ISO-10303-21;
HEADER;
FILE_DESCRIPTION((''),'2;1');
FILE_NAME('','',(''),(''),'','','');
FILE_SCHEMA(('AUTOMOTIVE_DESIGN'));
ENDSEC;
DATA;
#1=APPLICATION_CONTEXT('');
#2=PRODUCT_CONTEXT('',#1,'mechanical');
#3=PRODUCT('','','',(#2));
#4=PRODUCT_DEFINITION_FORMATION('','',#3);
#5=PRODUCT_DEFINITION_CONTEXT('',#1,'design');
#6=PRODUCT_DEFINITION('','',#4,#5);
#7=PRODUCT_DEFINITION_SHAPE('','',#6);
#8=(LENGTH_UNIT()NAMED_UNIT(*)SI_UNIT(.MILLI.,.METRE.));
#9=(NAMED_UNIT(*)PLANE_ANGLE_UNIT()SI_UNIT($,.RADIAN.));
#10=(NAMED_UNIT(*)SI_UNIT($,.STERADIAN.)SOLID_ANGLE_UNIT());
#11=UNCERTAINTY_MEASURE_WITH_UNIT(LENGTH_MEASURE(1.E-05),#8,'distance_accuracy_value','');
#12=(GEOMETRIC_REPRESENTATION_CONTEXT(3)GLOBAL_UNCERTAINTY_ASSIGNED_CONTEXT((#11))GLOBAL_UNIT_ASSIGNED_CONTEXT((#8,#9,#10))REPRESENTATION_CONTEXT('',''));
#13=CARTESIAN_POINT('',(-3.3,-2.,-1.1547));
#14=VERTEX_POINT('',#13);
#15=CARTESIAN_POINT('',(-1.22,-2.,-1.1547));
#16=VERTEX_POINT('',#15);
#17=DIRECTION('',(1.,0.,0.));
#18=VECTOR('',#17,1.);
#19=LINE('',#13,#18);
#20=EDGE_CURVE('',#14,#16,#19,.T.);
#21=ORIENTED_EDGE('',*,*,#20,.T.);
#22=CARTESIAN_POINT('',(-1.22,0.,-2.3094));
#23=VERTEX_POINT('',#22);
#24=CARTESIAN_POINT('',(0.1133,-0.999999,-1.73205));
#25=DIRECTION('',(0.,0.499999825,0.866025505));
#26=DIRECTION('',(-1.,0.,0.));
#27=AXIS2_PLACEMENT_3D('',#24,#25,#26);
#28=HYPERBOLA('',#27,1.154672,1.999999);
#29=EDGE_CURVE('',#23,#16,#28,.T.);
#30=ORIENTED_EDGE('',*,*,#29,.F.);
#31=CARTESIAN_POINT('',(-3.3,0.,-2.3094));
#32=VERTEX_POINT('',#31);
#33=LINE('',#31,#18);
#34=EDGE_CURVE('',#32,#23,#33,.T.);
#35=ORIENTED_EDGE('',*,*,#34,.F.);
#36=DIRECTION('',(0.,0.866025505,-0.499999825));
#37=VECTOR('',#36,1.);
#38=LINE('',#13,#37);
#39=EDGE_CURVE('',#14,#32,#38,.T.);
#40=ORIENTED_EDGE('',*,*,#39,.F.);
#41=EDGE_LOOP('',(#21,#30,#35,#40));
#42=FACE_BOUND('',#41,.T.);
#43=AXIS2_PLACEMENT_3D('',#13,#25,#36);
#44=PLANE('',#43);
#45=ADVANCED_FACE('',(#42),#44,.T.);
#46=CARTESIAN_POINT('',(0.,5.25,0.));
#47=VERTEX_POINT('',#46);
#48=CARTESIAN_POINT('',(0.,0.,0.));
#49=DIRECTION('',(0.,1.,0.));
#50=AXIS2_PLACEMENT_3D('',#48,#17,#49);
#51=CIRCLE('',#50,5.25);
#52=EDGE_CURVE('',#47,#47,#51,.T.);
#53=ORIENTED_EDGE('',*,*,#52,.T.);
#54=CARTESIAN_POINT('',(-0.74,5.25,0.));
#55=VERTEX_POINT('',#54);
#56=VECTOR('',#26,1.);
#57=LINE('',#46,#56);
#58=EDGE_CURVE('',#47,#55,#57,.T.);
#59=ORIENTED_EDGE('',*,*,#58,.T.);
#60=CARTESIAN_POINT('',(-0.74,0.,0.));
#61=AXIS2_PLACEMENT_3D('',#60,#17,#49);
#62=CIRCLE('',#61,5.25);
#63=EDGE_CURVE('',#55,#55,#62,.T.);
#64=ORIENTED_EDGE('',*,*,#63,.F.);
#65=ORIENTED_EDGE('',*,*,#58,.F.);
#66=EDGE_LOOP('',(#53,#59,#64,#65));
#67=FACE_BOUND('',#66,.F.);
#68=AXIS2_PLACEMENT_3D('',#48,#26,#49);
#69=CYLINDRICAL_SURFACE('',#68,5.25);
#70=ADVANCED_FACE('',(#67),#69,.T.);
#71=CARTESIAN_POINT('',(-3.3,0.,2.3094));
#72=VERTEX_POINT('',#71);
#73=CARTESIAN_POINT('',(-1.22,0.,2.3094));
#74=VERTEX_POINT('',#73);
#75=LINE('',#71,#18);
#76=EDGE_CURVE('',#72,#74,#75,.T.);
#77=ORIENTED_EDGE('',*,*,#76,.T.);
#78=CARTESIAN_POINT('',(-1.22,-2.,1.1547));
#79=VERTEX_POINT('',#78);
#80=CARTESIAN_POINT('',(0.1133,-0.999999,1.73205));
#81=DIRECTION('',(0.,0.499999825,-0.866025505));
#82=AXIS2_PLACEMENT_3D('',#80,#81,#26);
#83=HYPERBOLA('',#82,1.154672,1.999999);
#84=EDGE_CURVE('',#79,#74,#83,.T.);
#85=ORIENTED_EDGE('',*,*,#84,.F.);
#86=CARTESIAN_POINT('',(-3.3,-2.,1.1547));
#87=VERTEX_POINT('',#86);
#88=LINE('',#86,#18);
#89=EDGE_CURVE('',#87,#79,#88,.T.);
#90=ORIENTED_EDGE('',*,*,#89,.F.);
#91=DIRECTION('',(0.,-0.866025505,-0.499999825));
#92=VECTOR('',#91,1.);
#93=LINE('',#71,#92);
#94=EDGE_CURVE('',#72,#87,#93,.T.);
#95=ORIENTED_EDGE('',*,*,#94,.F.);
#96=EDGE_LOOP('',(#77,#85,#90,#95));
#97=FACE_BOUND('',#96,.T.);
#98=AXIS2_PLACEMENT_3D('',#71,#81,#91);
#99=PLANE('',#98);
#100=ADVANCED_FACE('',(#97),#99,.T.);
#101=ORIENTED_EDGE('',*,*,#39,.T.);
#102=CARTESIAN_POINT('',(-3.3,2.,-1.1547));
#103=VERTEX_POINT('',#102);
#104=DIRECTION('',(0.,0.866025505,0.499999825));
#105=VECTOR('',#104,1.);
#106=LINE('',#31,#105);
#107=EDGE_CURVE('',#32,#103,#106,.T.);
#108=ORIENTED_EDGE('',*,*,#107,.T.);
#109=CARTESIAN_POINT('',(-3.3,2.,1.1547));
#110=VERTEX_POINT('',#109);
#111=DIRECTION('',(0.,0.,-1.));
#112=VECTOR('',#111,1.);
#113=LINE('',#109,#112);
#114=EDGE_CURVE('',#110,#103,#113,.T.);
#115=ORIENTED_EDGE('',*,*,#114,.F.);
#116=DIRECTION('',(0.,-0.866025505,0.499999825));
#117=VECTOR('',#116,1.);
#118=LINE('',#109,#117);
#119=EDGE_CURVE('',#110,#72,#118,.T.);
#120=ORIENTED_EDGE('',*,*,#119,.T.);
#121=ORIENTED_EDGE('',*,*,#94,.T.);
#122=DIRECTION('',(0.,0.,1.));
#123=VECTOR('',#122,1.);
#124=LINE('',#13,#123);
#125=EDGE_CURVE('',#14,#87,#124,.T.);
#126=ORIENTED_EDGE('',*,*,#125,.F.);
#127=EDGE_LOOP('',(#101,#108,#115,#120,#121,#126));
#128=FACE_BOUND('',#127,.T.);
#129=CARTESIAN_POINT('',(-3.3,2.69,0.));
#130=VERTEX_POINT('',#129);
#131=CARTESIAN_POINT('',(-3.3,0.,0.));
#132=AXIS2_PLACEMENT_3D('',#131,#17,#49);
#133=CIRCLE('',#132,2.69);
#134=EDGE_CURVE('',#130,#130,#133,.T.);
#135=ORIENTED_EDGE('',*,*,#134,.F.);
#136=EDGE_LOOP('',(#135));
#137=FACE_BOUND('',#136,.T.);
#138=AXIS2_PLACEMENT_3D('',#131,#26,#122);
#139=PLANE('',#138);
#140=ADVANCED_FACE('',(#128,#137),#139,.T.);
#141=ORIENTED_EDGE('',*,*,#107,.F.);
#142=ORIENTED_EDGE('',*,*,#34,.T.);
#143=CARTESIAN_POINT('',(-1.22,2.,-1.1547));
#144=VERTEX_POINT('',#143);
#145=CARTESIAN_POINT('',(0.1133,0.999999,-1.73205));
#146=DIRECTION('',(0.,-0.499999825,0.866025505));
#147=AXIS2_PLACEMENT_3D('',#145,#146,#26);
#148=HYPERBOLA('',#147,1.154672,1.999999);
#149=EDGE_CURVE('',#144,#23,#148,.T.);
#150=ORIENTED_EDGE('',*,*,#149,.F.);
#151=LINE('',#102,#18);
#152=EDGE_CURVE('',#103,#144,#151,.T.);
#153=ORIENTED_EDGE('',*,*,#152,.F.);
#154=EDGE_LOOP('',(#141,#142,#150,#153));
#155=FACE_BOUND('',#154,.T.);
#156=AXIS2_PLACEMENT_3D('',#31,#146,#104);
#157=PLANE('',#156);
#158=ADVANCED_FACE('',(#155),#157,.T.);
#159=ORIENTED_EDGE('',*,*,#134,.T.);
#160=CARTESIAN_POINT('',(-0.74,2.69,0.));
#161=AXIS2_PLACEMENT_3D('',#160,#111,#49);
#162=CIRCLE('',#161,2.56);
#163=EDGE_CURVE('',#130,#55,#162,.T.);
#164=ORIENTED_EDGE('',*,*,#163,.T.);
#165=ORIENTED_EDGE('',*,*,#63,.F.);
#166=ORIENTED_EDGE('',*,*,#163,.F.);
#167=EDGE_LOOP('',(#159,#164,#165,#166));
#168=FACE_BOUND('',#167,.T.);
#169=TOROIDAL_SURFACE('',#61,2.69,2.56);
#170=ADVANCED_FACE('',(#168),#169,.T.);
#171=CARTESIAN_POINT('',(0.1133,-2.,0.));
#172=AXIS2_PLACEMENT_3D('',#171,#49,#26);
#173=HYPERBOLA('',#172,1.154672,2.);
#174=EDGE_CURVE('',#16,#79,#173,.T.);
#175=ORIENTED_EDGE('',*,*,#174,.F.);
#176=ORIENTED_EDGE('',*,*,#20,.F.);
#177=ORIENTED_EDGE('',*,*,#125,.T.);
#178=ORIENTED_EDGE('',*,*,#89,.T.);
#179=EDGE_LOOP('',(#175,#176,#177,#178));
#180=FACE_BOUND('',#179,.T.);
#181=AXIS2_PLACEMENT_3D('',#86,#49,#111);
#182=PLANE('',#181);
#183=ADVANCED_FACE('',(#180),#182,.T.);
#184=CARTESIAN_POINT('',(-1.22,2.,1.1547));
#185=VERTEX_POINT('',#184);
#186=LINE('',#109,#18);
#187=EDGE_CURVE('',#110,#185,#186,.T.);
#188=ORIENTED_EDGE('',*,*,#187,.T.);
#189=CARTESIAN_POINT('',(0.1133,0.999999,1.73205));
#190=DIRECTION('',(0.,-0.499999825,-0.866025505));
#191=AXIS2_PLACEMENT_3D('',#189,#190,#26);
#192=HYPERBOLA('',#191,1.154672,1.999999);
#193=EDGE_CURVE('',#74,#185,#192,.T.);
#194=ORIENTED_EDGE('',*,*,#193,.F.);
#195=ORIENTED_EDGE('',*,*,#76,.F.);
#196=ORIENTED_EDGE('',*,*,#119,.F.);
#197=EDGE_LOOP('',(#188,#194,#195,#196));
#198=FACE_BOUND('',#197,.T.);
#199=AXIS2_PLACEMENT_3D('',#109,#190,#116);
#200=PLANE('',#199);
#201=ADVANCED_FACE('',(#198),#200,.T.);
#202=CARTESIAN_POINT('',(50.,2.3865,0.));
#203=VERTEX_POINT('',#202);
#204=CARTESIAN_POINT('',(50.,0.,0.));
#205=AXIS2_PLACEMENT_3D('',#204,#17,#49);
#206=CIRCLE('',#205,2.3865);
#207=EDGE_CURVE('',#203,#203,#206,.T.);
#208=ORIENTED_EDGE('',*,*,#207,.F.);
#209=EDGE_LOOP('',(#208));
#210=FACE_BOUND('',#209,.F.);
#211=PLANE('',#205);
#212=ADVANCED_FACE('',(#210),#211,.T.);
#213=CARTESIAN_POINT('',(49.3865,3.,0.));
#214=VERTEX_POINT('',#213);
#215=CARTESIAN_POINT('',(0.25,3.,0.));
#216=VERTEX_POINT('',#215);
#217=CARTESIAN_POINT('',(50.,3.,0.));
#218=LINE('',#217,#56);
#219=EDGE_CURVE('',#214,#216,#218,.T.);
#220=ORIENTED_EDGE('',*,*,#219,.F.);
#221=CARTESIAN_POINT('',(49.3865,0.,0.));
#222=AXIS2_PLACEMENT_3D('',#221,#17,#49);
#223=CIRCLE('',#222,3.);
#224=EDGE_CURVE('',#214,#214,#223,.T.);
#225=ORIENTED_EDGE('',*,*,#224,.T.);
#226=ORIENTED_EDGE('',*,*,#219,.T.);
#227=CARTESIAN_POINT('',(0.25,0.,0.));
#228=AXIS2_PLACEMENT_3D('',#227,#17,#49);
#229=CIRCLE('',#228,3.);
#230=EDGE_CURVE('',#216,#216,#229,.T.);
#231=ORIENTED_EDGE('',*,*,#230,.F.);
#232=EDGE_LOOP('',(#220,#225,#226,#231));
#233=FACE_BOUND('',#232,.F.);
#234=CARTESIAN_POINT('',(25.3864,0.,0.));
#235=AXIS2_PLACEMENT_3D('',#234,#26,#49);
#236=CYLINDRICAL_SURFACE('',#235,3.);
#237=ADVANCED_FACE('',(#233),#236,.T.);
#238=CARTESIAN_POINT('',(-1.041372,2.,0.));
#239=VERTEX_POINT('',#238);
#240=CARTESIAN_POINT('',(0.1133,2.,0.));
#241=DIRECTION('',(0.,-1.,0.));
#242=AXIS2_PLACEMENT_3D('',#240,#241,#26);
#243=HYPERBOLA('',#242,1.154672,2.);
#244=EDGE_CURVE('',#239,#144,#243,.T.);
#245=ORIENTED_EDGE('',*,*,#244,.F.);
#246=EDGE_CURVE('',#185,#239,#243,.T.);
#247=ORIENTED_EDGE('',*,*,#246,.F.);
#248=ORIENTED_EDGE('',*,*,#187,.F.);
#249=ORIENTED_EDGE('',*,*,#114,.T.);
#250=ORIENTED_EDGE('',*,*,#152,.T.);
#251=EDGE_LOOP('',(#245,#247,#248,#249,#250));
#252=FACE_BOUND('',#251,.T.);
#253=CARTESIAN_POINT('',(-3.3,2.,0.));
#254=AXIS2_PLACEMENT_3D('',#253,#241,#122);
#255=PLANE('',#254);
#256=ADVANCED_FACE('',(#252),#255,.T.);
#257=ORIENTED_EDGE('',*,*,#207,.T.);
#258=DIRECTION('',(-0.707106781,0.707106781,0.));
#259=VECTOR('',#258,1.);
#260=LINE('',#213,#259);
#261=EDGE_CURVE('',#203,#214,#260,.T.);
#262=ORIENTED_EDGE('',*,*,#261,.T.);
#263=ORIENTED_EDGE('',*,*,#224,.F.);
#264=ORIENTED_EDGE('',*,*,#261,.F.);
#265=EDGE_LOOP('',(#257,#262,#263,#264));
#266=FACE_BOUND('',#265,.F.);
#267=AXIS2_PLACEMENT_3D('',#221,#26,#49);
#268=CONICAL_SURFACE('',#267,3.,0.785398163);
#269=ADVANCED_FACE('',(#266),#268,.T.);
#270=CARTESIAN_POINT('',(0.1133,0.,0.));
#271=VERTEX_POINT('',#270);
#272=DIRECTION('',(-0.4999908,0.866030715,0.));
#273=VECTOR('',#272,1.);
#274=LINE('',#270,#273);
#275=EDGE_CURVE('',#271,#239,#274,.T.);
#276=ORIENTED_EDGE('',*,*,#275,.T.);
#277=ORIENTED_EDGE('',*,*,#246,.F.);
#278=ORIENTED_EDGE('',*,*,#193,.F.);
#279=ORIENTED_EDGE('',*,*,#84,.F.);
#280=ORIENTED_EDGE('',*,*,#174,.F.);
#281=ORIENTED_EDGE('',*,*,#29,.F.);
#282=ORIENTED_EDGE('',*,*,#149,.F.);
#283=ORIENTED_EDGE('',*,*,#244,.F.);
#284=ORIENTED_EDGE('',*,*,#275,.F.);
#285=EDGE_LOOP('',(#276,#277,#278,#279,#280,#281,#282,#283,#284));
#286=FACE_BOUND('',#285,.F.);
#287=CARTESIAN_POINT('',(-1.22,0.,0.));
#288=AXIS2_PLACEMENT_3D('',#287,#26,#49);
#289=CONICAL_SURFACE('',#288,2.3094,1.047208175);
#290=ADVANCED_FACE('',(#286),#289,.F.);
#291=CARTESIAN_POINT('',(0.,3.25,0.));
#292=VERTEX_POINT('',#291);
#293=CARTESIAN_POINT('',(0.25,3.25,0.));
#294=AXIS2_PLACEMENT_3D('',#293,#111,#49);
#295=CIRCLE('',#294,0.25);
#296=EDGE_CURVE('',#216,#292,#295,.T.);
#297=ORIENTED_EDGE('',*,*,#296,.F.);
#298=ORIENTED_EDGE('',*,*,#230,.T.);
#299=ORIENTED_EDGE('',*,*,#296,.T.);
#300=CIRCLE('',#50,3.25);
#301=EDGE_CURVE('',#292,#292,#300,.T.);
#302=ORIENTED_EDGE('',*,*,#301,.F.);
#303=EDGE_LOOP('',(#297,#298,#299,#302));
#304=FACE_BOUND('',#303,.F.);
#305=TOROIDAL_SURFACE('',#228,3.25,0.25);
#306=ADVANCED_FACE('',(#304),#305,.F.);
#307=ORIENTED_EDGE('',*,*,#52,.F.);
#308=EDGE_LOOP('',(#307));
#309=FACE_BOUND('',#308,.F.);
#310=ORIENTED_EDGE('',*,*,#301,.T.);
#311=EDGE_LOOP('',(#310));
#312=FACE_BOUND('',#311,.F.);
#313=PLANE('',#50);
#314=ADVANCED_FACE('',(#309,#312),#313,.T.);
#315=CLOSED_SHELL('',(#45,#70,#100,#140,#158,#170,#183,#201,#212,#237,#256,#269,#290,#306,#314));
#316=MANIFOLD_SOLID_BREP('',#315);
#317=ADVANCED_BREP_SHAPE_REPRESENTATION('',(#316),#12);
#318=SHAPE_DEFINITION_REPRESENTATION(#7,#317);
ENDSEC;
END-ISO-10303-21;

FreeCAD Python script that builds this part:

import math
import FreeCAD as App
import Part
import Sketcher
from FreeCAD import Vector
Q = App.Units.Quantity


def edges_at(feature, points):
    """Names of the edges that pass closest to the given points."""
    edges = feature.Shape.Edges
    near = lambda p: min(range(len(edges)), key=lambda i: edges[i].distToShape(Part.Vertex(*p))[0])
    return sorted({f"Edge{near(p) + 1}" for p in points})

doc = App.newDocument("Part")
body = doc.addObject("PartDesign::Body", "Body")

# Sketch on XY plane
sketch1 = body.newObject("Sketcher::SketchObject", "Sketch")
sketch1.AttachmentSupport = (doc.getObject("XY_Plane"), [""])
sketch1.MapMode = "FlatFace"
sketch1.addGeometry([
    Part.LineSegment(Vector(0.1, 0, 0), Vector(50, 0, 0)),  # 0
    Part.LineSegment(Vector(50, 0, 0), Vector(50, 3, 0)),  # 1
    Part.LineSegment(Vector(50, 3, 0), Vector(0, 3, 0)),  # 2
    Part.LineSegment(Vector(0, 3, 0), Vector(0, 5.2, 0)),  # 3
    Part.LineSegment(Vector(0, 5.2, 0), Vector(-3.3, 5.2, 0)),  # 4
    Part.LineSegment(Vector(-3.3, 5.2, 0), Vector(-3.3, 2.3, 0)),  # 5
    Part.LineSegment(Vector(-3.3, 2.3, 0), Vector(-1.2, 2.3, 0)),  # 6
    Part.LineSegment(Vector(-1.2, 2.3, 0), Vector(0.1, 0, 0)),  # 7
], False)
sketch1.addConstraint([
    Sketcher.Constraint("Coincident", 0, 2, 1, 1),
    Sketcher.Constraint("Coincident", 1, 2, 2, 1),
    Sketcher.Constraint("Coincident", 2, 2, 3, 1),
    Sketcher.Constraint("Coincident", 3, 2, 4, 1),
    Sketcher.Constraint("Coincident", 4, 2, 5, 1),
    Sketcher.Constraint("Coincident", 5, 2, 6, 1),
    Sketcher.Constraint("Coincident", 6, 2, 7, 1),
    Sketcher.Constraint("Coincident", 7, 2, 0, 1),
    Sketcher.Constraint("Horizontal", 0),
    Sketcher.Constraint("Vertical", 1),
    Sketcher.Constraint("Horizontal", 2),
    Sketcher.Constraint("Vertical", 3),
    Sketcher.Constraint("Horizontal", 4),
    Sketcher.Constraint("Vertical", 5),
    Sketcher.Constraint("Horizontal", 6),
    Sketcher.Constraint("PointOnObject", 0, 2, -1),
    Sketcher.Constraint("PointOnObject", 2, 2, -2),
    Sketcher.Constraint("DistanceX", 2, 2, 2, 1, Q("50 mm")),
    Sketcher.Constraint("DistanceX", 4, 2, 4, 1, Q("3.3 mm")),
    Sketcher.Constraint("DistanceX", 6, 1, 6, 2, Q("2.08 mm")),
    Sketcher.Constraint("DistanceY", 1, 1, 1, 2, Q("3 mm")),
    Sketcher.Constraint("Angle", 7, Q("-60.0006 deg")),
    Sketcher.Constraint("DistanceY", 3, 1, 3, 2, Q("2.25 mm")),
    Sketcher.Constraint("DistanceX", 0, 1, 0, 2, Q("49.8867 mm")),
])
revolution = body.newObject("PartDesign::Revolution", "Revolution")
revolution.Profile = sketch1
revolution.ReferenceAxis = (sketch1, ["H_Axis"])
revolution.Angle = 360

# Sketch on YZ plane
sketch2 = body.newObject("Sketcher::SketchObject", "Sketch001")
sketch2.AttachmentSupport = (doc.getObject("YZ_Plane"), [""])
sketch2.MapMode = "FlatFace"
sketch2.AttachmentOffset = App.Placement(Vector(0, 0, -3.3), App.Rotation())
sketch2.addGeometry([
    Part.LineSegment(Vector(2, 1.2, 0), Vector(0, 2.3, 0)),  # 0
    Part.ArcOfCircle(Part.Circle(Vector(0, 0, 0), Vector(0, 0, 1), 2.3), math.radians(30), math.radians(90)),  # 1
    Part.ArcOfCircle(Part.Circle(Vector(0, 0, 0), Vector(0, 0, 1), 2.3), math.radians(90), math.radians(150)),  # 2
    Part.LineSegment(Vector(0, 2.3, 0), Vector(-2, 1.2, 0)),  # 3
    Part.ArcOfCircle(Part.Circle(Vector(0, 0, 0), Vector(0, 0, 1), 2.3), math.radians(-30), math.radians(30)),  # 4
    Part.LineSegment(Vector(2, -1.2, 0), Vector(2, 1.2, 0)),  # 5
    Part.LineSegment(Vector(-2, 1.2, 0), Vector(-2, -1.2, 0)),  # 6
    Part.ArcOfCircle(Part.Circle(Vector(0, 0, 0), Vector(0, 0, 1), 2.3), math.radians(150), math.radians(210)),  # 7
    Part.LineSegment(Vector(-2, -1.2, 0), Vector(0, -2.3, 0)),  # 8
    Part.ArcOfCircle(Part.Circle(Vector(0, 0, 0), Vector(0, 0, 1), 2.3), math.radians(-150), math.radians(-90)),  # 9
    Part.ArcOfCircle(Part.Circle(Vector(0, 0, 0), Vector(0, 0, 1), 2.3), math.radians(-90), math.radians(-30)),  # 10
    Part.LineSegment(Vector(0, -2.3, 0), Vector(2, -1.2, 0)),  # 11
], False)
sketch2.addConstraint([
    Sketcher.Constraint("Coincident", 0, 1, 1, 1),
    Sketcher.Constraint("Coincident", 1, 2, 0, 2),
    Sketcher.Constraint("Coincident", 2, 1, 3, 1),
    Sketcher.Constraint("Coincident", 3, 2, 2, 2),
    Sketcher.Constraint("Coincident", 4, 1, 5, 1),
    Sketcher.Constraint("Coincident", 5, 2, 4, 2),
    Sketcher.Constraint("Coincident", 6, 1, 7, 1),
    Sketcher.Constraint("Coincident", 7, 2, 6, 2),
    Sketcher.Constraint("Coincident", 8, 1, 9, 1),
    Sketcher.Constraint("Coincident", 9, 2, 8, 2),
    Sketcher.Constraint("Coincident", 10, 1, 11, 1),
    Sketcher.Constraint("Coincident", 11, 2, 10, 2),
    Sketcher.Constraint("Vertical", 5),
    Sketcher.Constraint("Vertical", 6),
    Sketcher.Constraint("Coincident", 1, 3, -1, 1),
    Sketcher.Constraint("Coincident", 2, 3, -1, 1),
    Sketcher.Constraint("Coincident", 4, 3, -1, 1),
    Sketcher.Constraint("Coincident", 7, 3, -1, 1),
    Sketcher.Constraint("Coincident", 9, 3, -1, 1),
    Sketcher.Constraint("Coincident", 10, 3, -1, 1),
    Sketcher.Constraint("Coincident", 2, 1, 1, 2),
    Sketcher.Constraint("Coincident", 5, 2, 0, 1),
    Sketcher.Constraint("Coincident", 6, 1, 3, 2),
    Sketcher.Constraint("Coincident", 8, 1, 7, 2),
    Sketcher.Constraint("Coincident", 10, 1, 9, 2),
    Sketcher.Constraint("PointOnObject", 1, 2, -2),
    Sketcher.Constraint("PointOnObject", 9, 2, -2),
    Sketcher.Constraint("Parallel", 0, 8),
    Sketcher.Constraint("Parallel", 3, 11),
    Sketcher.Constraint("Angle", 0, Q("150 deg")),
    Sketcher.Constraint("DistanceX", -1, 1, 0, 1, Q("2 mm")),
])
pad1 = body.newObject("PartDesign::Pad", "Pad")
pad1.Profile = sketch2
pad1.Length = 2.2586
doc.recompute()

fillet = body.newObject("PartDesign::Fillet", "Fillet")
fillet.Base = (pad1, edges_at(pad1, [(-3.3, -5.25, 0)]))
fillet.Radius = 2.56
doc.recompute()

chamfer = body.newObject("PartDesign::Chamfer", "Chamfer")
chamfer.Base = (fillet, edges_at(fillet, [(50, -3, 0)]))
chamfer.ChamferType = "Two distances"
chamfer.Size = 0.6135
chamfer.Size2 = 0.6135
doc.recompute()

fillet2 = body.newObject("PartDesign::Fillet", "Fillet001")
fillet2.Base = (chamfer, edges_at(chamfer, [(0, -3, 0)]))
fillet2.Radius = 0.25

doc.recompute()
